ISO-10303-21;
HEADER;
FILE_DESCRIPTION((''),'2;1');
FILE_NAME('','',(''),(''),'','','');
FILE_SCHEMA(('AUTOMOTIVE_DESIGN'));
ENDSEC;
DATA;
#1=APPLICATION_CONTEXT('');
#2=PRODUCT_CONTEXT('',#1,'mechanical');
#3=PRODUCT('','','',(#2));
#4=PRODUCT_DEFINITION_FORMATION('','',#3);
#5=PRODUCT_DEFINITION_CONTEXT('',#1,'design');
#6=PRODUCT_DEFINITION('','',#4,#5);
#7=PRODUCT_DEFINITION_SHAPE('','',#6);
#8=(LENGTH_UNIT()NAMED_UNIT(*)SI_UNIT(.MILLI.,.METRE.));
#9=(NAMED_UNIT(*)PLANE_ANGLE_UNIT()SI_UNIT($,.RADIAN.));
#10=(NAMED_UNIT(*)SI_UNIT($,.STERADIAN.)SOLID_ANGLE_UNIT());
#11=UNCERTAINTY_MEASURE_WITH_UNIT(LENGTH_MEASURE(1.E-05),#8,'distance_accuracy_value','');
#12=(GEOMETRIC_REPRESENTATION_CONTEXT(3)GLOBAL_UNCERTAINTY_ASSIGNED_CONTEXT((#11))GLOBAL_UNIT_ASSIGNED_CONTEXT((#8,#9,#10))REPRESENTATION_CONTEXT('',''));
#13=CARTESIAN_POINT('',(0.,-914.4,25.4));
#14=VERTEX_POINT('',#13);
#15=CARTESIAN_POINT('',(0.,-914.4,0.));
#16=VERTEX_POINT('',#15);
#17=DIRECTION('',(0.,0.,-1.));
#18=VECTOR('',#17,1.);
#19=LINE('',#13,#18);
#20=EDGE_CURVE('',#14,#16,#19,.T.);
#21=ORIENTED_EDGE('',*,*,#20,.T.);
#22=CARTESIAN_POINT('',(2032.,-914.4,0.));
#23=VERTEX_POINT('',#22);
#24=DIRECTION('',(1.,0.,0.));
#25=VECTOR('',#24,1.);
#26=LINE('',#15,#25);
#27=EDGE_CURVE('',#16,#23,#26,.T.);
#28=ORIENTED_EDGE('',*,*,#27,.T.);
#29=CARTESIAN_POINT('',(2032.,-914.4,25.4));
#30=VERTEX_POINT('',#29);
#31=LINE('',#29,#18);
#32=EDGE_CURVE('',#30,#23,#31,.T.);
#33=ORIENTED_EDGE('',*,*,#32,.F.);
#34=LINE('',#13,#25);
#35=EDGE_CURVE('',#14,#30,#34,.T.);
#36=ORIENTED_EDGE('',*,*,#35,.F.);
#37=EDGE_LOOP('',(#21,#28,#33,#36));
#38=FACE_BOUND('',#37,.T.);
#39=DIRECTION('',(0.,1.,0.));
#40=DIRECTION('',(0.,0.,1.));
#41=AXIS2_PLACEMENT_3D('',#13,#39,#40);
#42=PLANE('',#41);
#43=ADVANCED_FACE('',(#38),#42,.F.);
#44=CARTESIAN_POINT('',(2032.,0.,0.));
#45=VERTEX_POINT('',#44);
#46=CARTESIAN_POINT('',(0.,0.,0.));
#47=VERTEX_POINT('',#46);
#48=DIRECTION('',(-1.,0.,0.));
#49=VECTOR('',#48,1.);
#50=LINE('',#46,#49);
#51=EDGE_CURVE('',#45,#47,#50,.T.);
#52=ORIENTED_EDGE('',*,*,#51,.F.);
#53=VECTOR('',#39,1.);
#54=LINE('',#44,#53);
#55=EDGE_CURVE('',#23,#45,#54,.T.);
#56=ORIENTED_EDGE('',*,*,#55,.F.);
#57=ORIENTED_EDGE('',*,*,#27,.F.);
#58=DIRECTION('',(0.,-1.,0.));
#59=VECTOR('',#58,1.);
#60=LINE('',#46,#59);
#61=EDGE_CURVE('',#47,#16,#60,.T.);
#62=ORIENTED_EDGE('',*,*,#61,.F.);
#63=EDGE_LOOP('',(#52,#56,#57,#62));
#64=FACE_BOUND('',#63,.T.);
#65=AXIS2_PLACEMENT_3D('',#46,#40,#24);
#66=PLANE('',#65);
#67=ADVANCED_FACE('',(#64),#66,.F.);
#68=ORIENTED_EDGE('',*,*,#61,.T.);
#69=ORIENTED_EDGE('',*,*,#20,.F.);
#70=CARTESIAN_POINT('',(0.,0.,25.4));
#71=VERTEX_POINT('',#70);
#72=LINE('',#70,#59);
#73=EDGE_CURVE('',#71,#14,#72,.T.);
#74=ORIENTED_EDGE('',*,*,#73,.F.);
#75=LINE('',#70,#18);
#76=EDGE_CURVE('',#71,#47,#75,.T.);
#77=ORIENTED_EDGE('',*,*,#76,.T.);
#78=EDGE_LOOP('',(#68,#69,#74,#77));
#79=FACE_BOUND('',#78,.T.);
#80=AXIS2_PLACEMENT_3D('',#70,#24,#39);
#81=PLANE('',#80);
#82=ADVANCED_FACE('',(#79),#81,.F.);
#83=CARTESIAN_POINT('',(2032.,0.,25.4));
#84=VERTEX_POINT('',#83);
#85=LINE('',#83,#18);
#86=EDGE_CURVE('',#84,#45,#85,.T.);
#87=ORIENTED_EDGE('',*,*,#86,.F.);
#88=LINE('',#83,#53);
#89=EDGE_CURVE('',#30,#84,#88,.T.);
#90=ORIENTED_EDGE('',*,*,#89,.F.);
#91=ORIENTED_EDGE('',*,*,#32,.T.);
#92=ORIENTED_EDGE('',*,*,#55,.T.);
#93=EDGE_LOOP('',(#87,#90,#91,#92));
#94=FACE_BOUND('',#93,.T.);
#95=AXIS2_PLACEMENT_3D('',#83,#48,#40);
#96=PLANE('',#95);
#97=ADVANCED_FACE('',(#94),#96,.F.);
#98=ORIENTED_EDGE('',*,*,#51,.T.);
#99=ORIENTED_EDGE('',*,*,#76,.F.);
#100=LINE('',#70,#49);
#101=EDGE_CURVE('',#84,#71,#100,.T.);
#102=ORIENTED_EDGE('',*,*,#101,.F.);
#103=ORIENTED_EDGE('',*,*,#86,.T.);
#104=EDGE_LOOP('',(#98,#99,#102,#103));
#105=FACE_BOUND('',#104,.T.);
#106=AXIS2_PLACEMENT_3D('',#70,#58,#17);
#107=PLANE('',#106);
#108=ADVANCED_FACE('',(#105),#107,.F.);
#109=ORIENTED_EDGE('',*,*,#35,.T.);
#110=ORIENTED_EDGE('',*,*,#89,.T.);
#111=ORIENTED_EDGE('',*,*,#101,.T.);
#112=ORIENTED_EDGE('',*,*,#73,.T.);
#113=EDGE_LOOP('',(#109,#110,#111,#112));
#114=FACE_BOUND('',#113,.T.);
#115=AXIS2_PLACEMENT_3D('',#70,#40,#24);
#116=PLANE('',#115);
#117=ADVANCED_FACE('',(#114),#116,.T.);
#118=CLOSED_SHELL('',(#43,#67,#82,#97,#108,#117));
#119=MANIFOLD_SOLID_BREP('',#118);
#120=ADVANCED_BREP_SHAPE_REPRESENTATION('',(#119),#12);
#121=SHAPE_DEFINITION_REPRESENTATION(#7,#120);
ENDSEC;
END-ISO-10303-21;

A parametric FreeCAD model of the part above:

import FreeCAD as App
import Part
import Sketcher
from FreeCAD import Vector
Q = App.Units.Quantity


def add_polygon(sketch, points):
    """Adds a closed chain of lines whose ends are joined by coincident constraints."""
    first, n = sketch.GeometryCount, len(points)
    for a, b in zip(points, points[1:] + points[:1]):
        sketch.addGeometry(Part.LineSegment(App.Vector(*a, 0), App.Vector(*b, 0)), False)
    for i in range(n):
        sketch.addConstraint(Sketcher.Constraint("Coincident", first + i, 2, first + (i + 1) % n, 1))

doc = App.newDocument("Part")
body = doc.addObject("PartDesign::Body", "Body")

sketch1 = body.newObject("Sketcher::SketchObject", "Sketch")
sketch1.AttachmentSupport = (doc.getObject("XY_Plane"), [""])
sketch1.MapMode = "FlatFace"
add_polygon(sketch1, [(0, 0), (0, -914.4), (2032, -914.4), (2032, 0)])
sketch1.addConstraint([
    Sketcher.Constraint("Vertical", 0),
    Sketcher.Constraint("Horizontal", 1),
    Sketcher.Constraint("Vertical", 2),
    Sketcher.Constraint("Horizontal", 3),
    Sketcher.Constraint("Coincident", 3, 2, -1, 1),
    Sketcher.Constraint("DistanceX", 1, 1, 1, 2, Q("80 in")),
    Sketcher.Constraint("DistanceY", 0, 2, 0, 1, Q("36 in")),
])
pad1 = body.newObject("PartDesign::Pad", "Pad")
pad1.Profile = sketch1
pad1.Length = Q("1 in")

doc.recompute()
